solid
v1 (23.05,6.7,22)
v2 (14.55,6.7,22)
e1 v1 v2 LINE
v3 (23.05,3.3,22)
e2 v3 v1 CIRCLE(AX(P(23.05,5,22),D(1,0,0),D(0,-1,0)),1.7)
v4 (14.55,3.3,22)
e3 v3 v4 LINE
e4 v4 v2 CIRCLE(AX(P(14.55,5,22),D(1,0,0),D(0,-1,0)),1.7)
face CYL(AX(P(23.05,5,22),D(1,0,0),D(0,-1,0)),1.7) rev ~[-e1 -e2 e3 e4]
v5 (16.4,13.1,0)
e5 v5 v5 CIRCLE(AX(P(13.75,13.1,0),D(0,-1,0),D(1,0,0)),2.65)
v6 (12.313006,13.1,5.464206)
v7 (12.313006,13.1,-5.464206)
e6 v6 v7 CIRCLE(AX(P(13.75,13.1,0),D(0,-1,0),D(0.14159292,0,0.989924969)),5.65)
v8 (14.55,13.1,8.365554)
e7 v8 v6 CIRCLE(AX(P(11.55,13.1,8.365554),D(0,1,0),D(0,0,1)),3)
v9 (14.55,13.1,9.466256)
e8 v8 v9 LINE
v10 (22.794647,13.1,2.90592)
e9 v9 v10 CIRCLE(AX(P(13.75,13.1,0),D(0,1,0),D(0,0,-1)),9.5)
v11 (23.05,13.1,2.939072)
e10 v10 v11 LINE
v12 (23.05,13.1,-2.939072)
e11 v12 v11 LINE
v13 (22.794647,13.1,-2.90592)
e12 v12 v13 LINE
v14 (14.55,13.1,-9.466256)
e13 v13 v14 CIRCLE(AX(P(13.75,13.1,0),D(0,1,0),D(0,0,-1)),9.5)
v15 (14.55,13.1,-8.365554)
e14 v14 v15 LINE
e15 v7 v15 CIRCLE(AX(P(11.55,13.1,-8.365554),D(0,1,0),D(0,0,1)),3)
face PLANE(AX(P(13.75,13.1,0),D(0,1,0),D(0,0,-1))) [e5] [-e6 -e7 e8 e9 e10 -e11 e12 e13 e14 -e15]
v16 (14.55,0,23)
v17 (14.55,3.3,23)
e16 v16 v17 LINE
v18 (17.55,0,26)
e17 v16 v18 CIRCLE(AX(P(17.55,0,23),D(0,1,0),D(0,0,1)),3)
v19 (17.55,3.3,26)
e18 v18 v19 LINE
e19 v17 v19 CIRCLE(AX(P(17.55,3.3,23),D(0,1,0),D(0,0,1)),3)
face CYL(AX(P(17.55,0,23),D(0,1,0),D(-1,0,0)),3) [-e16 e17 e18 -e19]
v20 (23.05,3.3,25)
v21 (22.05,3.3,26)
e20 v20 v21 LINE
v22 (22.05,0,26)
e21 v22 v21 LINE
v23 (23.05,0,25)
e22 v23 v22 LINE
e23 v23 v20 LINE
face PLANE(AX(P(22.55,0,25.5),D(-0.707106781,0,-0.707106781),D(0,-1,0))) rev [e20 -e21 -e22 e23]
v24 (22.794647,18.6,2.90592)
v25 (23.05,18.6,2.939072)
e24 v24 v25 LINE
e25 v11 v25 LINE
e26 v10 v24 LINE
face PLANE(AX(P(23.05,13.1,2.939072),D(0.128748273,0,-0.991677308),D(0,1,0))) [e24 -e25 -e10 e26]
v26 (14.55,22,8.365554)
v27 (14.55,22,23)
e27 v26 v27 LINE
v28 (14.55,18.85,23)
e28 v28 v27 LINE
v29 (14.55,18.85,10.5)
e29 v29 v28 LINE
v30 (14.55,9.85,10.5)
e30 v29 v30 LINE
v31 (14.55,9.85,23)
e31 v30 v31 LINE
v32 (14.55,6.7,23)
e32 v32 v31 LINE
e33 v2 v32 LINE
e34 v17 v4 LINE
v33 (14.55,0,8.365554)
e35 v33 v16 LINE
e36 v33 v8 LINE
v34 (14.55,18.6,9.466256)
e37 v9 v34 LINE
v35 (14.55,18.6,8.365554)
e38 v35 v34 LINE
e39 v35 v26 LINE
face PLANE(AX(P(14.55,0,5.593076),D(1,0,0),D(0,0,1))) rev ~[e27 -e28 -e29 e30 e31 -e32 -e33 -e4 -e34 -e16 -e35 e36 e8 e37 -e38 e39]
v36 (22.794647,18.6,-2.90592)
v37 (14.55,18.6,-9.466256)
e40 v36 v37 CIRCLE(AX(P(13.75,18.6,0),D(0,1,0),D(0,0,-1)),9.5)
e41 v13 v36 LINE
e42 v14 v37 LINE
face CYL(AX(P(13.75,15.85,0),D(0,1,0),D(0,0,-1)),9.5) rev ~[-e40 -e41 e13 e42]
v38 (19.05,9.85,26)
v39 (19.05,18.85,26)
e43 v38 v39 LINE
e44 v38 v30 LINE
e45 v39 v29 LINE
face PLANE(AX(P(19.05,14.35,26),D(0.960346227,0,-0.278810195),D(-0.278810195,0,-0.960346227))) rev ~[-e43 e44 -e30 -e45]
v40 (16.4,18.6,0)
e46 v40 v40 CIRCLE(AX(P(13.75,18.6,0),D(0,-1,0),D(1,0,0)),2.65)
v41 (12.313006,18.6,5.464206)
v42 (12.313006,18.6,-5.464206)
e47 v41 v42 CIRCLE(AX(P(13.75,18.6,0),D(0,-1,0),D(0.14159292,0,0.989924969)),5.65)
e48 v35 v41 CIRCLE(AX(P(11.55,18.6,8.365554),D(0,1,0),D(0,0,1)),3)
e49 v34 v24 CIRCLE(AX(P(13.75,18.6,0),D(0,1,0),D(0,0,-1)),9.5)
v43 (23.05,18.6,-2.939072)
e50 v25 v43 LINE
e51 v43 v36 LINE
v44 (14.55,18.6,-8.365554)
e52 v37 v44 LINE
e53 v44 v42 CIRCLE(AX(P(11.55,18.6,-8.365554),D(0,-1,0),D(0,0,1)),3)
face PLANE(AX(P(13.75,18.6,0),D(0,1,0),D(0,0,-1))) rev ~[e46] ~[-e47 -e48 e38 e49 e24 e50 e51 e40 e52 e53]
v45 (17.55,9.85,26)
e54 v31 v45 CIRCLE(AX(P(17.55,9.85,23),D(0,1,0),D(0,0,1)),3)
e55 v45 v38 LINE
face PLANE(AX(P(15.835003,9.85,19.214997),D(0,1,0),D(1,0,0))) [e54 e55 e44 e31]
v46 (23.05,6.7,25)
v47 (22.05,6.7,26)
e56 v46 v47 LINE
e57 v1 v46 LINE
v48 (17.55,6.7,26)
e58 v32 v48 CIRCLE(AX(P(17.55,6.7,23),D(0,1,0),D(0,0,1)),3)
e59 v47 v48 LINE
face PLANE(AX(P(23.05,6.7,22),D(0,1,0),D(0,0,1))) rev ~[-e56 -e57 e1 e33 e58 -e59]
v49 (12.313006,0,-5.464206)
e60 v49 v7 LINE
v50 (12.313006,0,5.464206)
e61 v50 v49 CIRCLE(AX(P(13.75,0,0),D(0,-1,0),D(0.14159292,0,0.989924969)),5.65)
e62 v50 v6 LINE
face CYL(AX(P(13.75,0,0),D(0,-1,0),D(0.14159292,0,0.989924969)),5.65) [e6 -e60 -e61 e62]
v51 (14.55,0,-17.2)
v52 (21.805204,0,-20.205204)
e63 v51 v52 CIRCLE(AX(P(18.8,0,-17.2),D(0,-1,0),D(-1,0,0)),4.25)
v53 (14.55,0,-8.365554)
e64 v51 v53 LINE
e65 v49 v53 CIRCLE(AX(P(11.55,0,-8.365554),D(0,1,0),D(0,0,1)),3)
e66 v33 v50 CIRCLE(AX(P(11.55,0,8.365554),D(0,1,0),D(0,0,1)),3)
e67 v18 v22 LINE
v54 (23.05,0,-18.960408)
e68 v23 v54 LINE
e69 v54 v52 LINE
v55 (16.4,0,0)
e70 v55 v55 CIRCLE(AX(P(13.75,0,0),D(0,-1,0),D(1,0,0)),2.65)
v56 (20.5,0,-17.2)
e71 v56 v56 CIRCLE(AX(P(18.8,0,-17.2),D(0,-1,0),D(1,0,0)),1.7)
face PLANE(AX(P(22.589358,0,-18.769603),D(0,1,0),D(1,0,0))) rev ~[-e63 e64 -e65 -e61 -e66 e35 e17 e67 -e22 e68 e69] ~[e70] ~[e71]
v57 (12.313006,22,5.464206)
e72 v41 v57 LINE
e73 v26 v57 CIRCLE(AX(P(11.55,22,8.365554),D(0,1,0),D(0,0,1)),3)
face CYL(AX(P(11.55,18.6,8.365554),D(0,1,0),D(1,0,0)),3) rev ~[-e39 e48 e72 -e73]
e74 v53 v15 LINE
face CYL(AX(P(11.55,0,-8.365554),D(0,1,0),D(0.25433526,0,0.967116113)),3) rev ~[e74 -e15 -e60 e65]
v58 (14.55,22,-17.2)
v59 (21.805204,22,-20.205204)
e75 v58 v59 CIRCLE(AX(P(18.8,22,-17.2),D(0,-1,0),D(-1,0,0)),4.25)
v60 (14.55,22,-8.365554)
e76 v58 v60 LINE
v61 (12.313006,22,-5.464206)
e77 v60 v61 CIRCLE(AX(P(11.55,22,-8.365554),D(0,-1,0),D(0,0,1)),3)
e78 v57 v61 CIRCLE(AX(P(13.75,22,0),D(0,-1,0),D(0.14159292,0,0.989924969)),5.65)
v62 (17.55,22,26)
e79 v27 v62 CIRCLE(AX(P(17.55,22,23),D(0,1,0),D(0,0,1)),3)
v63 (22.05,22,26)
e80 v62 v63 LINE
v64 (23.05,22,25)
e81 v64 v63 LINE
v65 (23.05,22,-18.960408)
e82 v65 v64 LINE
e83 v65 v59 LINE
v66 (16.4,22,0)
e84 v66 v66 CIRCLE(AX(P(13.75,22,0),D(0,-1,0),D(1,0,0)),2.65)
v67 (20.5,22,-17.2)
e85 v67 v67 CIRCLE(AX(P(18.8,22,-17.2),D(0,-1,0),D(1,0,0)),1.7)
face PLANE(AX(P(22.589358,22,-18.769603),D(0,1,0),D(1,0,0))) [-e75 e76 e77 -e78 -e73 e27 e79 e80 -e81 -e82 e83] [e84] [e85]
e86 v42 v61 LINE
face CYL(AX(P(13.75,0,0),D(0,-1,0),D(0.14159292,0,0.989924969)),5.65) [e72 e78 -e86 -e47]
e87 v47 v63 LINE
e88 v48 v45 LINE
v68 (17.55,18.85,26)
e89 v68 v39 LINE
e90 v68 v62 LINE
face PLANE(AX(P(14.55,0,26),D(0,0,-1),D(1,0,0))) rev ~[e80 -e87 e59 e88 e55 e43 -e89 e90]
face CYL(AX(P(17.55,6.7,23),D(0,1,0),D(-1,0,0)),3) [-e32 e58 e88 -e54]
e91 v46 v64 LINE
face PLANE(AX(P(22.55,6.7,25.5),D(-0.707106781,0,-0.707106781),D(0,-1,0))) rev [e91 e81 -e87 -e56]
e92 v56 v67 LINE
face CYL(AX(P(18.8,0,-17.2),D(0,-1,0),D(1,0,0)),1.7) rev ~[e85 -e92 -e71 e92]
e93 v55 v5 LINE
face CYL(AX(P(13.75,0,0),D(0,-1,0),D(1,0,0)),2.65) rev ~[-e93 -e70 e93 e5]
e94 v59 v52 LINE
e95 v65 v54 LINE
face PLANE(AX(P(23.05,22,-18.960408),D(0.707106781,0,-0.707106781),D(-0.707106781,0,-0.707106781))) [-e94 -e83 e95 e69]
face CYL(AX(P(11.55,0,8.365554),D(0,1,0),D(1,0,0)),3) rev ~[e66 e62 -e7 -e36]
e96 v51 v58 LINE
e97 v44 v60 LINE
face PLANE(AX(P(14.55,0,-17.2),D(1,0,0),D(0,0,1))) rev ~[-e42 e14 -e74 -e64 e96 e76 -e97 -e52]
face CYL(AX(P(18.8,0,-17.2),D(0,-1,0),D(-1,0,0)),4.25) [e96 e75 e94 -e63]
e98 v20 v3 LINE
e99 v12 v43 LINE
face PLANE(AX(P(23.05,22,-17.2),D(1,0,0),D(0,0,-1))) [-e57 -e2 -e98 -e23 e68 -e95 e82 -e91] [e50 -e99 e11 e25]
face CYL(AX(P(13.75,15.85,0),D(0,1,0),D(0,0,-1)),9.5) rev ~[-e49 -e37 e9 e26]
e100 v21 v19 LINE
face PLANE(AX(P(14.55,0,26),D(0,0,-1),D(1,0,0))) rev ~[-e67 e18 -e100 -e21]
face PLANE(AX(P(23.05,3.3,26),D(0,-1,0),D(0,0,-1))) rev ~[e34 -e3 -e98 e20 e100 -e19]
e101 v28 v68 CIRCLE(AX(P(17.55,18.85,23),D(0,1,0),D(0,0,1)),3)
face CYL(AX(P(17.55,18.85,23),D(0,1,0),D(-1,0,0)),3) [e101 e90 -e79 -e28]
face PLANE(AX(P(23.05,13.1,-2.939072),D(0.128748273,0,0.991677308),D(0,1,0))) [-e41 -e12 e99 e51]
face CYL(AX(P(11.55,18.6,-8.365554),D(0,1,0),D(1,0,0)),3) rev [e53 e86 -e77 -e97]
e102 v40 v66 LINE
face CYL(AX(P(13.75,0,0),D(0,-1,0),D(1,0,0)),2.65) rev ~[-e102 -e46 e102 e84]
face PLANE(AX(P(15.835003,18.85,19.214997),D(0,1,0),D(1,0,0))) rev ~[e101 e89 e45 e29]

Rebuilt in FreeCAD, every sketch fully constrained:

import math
import FreeCAD as App
import Part
import Sketcher
from FreeCAD import Vector
Q = App.Units.Quantity


def edges_at(feature, points):
    """Names of the edges that pass closest to the given points."""
    edges = feature.Shape.Edges
    near = lambda p: min(range(len(edges)), key=lambda i: edges[i].distToShape(Part.Vertex(*p))[0])
    return sorted({f"Edge{near(p) + 1}" for p in points})

doc = App.newDocument("Part")
body = doc.addObject("PartDesign::Body", "Body")

# Sketch on XZ plane
sketch1 = doc.addObject("Sketcher::SketchObject", "Sketch")
body.addObject(sketch1)
sketch1.AttachmentSupport = (doc.XZ_Plane, [""])
sketch1.MapMode = "FlatFace"
sketch1.addGeometry([
    Part.LineSegment(Vector(14.6, -5.6, 0), Vector(14.6, -17.2, 0)),  # 0
    Part.ArcOfCircle(Part.Circle(Vector(18.8, -17.2, 0), Vector(0, 0, 1), 4.2), math.radians(180), math.radians(360)),  # 1
    Part.LineSegment(Vector(23.1, -17.2, 0), Vector(23.1, 26, 0)),  # 2
    Part.LineSegment(Vector(23.1, 26, 0), Vector(14.6, 26, 0)),  # 3
    Part.LineSegment(Vector(14.6, 26, 0), Vector(14.6, 5.6, 0)),  # 4
    Part.ArcOfCircle(Part.Circle(Vector(13.8, 0, 0), Vector(0, 0, 1), 5.7), math.radians(82), math.radians(278)),  # 5
    Part.Circle(Vector(18.8, -17.2, 0), Vector(0, 0, 1), 1.7),  # 6
    Part.Circle(Vector(13.8, 0, 0), Vector(0, 0, 1), 2.6),  # 7
], False)
sketch1.addConstraint([
    Sketcher.Constraint("Tangent", 0, 2, 1, 1),
    Sketcher.Constraint("Tangent", 1, 2, 2, 1),
    Sketcher.Constraint("Coincident", 2, 2, 3, 1),
    Sketcher.Constraint("Coincident", 3, 2, 4, 1),
    Sketcher.Constraint("Coincident", 4, 2, 5, 1),
    Sketcher.Constraint("Coincident", 5, 2, 0, 1),
    Sketcher.Constraint("Vertical", 0),
    Sketcher.Constraint("Vertical", 2),
    Sketcher.Constraint("Horizontal", 3),
    Sketcher.Constraint("Vertical", 4),
    Sketcher.Constraint("Coincident", 6, 3, 1, 3),
    Sketcher.Constraint("Coincident", 7, 3, 5, 3),
    Sketcher.Constraint("Symmetric", 4, 2, 5, 2, -1),
    Sketcher.Constraint("Diameter", 6, 3.4),
    Sketcher.Constraint("Diameter", 7, 5.3),
    Sketcher.Constraint("Radius", 1, 4.25),
    Sketcher.Constraint("Radius", 5, 5.65),
    Sketcher.Constraint("DistanceY", 2, 1, 2, 2, 43.2),
    Sketcher.Constraint("DistanceY", -1, 1, 2, 2, 26.0),
    Sketcher.Constraint("DistanceX", -1, 1, 1, 3, 18.8),
    Sketcher.Constraint("DistanceX", 5, 3, 0, 2, 0.8),
])
pad1 = doc.addObject("PartDesign::Pad", "Pad")
body.addObject(pad1)
pad1.Profile = sketch1
pad1.Length = 22
pad1.Reversed = True

# Sketch on XZ plane
sketch2 = doc.addObject("Sketcher::SketchObject", "Sketch001")
body.addObject(sketch2)
sketch2.AttachmentSupport = (doc.XZ_Plane, [""])
sketch2.MapMode = "FlatFace"
sketch2.AttachmentOffset = App.Placement(Vector(0, 0, -15.85), App.Rotation())
sketch2.addGeometry(Part.Circle(Vector(14, 0, 0), Vector(0, 0, 1), 10), False)
sketch2.addConstraint([
    Sketcher.Constraint("PointOnObject", 0, 3, -1),
    Sketcher.Constraint("Diameter", 0, 19.0),
    Sketcher.Constraint("DistanceX", -1, 1, 0, 3, 13.75),
])
pocket1 = doc.addObject("PartDesign::Pocket", "Pocket")
body.addObject(pocket1)
pocket1.Profile = sketch2
pocket1.Length = 5.5
pocket1.Midplane = True

# Sketch on YZ plane
sketch3 = doc.addObject("Sketcher::SketchObject", "Sketch002")
body.addObject(sketch3)
sketch3.AttachmentSupport = (doc.YZ_Plane, [""])
sketch3.MapMode = "FlatFace"
sketch3.AttachmentOffset = App.Placement(Vector(0, 0, 23.05), App.Rotation())
sketch3.addGeometry([
    Part.LineSegment(Vector(3.3, 26, 0), Vector(3.3, 22, 0)),
    Part.ArcOfCircle(Part.Circle(Vector(5, 22, 0), Vector(0, 0, 1), 1.7), math.radians(180), math.radians(360)),
    Part.LineSegment(Vector(6.7, 22, 0), Vector(6.7, 26, 0)),
    Part.LineSegment(Vector(6.7, 26, 0), Vector(3.3, 26, 0)),
], False)
sketch3.addConstraint([
    Sketcher.Constraint("Tangent", 0, 2, 1, 1),
    Sketcher.Constraint("Tangent", 1, 2, 2, 1),
    Sketcher.Constraint("Coincident", 2, 2, 3, 1),
    Sketcher.Constraint("Coincident", 3, 2, 0, 1),
    Sketcher.Constraint("Vertical", 0),
    Sketcher.Constraint("Vertical", 2),
    Sketcher.Constraint("Horizontal", 3),
    Sketcher.Constraint("Radius", 1, 1.7),
    Sketcher.Constraint("DistanceY", 0, 2, 0, 1, 4.0),
    Sketcher.Constraint("DistanceX", -1, 1, 1, 3, 5.0),
    Sketcher.Constraint("DistanceY", -1, 1, 1, 3, 22.0),
])
pocket2 = doc.addObject("PartDesign::Pocket", "Pocket001")
body.addObject(pocket2)
pocket2.Profile = sketch3
pocket2.Length = 10

# Sketch on XZ plane
sketch4 = doc.addObject("Sketcher::SketchObject", "Sketch003")
body.addObject(sketch4)
sketch4.AttachmentSupport = (doc.XZ_Plane, [""])
sketch4.MapMode = "FlatFace"
sketch4.AttachmentOffset = App.Placement(Vector(0, 0, -14.35), App.Rotation())
sketch4.addGeometry([
    Part.LineSegment(Vector(14.6, 26, 0), Vector(19.1, 26, 0)),
    Part.LineSegment(Vector(19.1, 26, 0), Vector(14.6, 10.5, 0)),
    Part.LineSegment(Vector(14.6, 10.5, 0), Vector(14.6, 26, 0)),
], False)
sketch4.addConstraint([
    Sketcher.Constraint("Coincident", 0, 2, 1, 1),
    Sketcher.Constraint("Coincident", 1, 2, 2, 1),
    Sketcher.Constraint("Coincident", 2, 2, 0, 1),
    Sketcher.Constraint("Horizontal", 0),
    Sketcher.Constraint("Vertical", 2),
    Sketcher.Constraint("DistanceX", 0, 1, 0, 2, 4.5),
    Sketcher.Constraint("DistanceY", 2, 1, 2, 2, 15.5),
    Sketcher.Constraint("DistanceY", -1, 1, 0, 2, 26.0),
    Sketcher.Constraint("DistanceX", -1, 1, 0, 2, 19.05),
])
pocket3 = doc.addObject("PartDesign::Pocket", "Pocket002")
body.addObject(pocket3)
pocket3.Profile = sketch4
pocket3.Length = 9
pocket3.Midplane = True

# Sketch on XZ plane
sketch5 = doc.addObject("Sketcher::SketchObject", "Sketch004")
body.addObject(sketch5)
sketch5.AttachmentSupport = (doc.XZ_Plane, [""])
sketch5.MapMode = "FlatFace"
sketch5.AttachmentOffset = App.Placement(Vector(0, 0, -22), App.Rotation())
sketch5.addGeometry([
    Part.LineSegment(Vector(23.1, -17.2, 0), Vector(23.1, -19, 0)),
    Part.LineSegment(Vector(23.1, -19, 0), Vector(21.8, -20.2, 0)),
    Part.LineSegment(Vector(21.8, -20.2, 0), Vector(23.1, -17.2, 0)),
], False)
sketch5.addConstraint([
    Sketcher.Constraint("Coincident", 0, 2, 1, 1),
    Sketcher.Constraint("Coincident", 1, 2, 2, 1),
    Sketcher.Constraint("Coincident", 2, 2, 0, 1),
    Sketcher.Constraint("Vertical", 0),
    Sketcher.Constraint("Angle", 1, Q("-135 deg")),
    Sketcher.Constraint("Angle", 2, Q("67.5 deg")),
    Sketcher.Constraint("DistanceY", 2, 2, -1, 1, 17.2),
    Sketcher.Constraint("DistanceX", -1, 1, 0, 2, 23.05),
    Sketcher.Constraint("Distance", 2, 3.252809),
])
pad2 = doc.addObject("PartDesign::Pad", "Pad001")
body.addObject(pad2)
pad2.Profile = sketch5
pad2.Length = 22
doc.recompute()

fillet = doc.addObject("PartDesign::Fillet", "Fillet")
body.addObject(fillet)
fillet.Base = (pad2, edges_at(pad2, [
    (14.55, 1.65, 26),
    (14.55, 8.275, 26),
    (14.55, 20.425, 26),
    (14.55, 6.55, 5.593),
    (14.55, 20.3, 5.593),
    (14.55, 20.3, -5.593),
    (14.55, 6.55, -5.593),
]))
fillet.Radius = 3
doc.recompute()

chamfer = doc.addObject("PartDesign::Chamfer", "Chamfer")
body.addObject(chamfer)
chamfer.Base = (fillet, edges_at(fillet, [
    (23.05, 1.65, 26),
    (23.05, 14.35, 26),
    (23.05, 15.85, 1.939),
    (23.05, 15.85, -1.939),
]))
chamfer.Size = 1

doc.recompute()
